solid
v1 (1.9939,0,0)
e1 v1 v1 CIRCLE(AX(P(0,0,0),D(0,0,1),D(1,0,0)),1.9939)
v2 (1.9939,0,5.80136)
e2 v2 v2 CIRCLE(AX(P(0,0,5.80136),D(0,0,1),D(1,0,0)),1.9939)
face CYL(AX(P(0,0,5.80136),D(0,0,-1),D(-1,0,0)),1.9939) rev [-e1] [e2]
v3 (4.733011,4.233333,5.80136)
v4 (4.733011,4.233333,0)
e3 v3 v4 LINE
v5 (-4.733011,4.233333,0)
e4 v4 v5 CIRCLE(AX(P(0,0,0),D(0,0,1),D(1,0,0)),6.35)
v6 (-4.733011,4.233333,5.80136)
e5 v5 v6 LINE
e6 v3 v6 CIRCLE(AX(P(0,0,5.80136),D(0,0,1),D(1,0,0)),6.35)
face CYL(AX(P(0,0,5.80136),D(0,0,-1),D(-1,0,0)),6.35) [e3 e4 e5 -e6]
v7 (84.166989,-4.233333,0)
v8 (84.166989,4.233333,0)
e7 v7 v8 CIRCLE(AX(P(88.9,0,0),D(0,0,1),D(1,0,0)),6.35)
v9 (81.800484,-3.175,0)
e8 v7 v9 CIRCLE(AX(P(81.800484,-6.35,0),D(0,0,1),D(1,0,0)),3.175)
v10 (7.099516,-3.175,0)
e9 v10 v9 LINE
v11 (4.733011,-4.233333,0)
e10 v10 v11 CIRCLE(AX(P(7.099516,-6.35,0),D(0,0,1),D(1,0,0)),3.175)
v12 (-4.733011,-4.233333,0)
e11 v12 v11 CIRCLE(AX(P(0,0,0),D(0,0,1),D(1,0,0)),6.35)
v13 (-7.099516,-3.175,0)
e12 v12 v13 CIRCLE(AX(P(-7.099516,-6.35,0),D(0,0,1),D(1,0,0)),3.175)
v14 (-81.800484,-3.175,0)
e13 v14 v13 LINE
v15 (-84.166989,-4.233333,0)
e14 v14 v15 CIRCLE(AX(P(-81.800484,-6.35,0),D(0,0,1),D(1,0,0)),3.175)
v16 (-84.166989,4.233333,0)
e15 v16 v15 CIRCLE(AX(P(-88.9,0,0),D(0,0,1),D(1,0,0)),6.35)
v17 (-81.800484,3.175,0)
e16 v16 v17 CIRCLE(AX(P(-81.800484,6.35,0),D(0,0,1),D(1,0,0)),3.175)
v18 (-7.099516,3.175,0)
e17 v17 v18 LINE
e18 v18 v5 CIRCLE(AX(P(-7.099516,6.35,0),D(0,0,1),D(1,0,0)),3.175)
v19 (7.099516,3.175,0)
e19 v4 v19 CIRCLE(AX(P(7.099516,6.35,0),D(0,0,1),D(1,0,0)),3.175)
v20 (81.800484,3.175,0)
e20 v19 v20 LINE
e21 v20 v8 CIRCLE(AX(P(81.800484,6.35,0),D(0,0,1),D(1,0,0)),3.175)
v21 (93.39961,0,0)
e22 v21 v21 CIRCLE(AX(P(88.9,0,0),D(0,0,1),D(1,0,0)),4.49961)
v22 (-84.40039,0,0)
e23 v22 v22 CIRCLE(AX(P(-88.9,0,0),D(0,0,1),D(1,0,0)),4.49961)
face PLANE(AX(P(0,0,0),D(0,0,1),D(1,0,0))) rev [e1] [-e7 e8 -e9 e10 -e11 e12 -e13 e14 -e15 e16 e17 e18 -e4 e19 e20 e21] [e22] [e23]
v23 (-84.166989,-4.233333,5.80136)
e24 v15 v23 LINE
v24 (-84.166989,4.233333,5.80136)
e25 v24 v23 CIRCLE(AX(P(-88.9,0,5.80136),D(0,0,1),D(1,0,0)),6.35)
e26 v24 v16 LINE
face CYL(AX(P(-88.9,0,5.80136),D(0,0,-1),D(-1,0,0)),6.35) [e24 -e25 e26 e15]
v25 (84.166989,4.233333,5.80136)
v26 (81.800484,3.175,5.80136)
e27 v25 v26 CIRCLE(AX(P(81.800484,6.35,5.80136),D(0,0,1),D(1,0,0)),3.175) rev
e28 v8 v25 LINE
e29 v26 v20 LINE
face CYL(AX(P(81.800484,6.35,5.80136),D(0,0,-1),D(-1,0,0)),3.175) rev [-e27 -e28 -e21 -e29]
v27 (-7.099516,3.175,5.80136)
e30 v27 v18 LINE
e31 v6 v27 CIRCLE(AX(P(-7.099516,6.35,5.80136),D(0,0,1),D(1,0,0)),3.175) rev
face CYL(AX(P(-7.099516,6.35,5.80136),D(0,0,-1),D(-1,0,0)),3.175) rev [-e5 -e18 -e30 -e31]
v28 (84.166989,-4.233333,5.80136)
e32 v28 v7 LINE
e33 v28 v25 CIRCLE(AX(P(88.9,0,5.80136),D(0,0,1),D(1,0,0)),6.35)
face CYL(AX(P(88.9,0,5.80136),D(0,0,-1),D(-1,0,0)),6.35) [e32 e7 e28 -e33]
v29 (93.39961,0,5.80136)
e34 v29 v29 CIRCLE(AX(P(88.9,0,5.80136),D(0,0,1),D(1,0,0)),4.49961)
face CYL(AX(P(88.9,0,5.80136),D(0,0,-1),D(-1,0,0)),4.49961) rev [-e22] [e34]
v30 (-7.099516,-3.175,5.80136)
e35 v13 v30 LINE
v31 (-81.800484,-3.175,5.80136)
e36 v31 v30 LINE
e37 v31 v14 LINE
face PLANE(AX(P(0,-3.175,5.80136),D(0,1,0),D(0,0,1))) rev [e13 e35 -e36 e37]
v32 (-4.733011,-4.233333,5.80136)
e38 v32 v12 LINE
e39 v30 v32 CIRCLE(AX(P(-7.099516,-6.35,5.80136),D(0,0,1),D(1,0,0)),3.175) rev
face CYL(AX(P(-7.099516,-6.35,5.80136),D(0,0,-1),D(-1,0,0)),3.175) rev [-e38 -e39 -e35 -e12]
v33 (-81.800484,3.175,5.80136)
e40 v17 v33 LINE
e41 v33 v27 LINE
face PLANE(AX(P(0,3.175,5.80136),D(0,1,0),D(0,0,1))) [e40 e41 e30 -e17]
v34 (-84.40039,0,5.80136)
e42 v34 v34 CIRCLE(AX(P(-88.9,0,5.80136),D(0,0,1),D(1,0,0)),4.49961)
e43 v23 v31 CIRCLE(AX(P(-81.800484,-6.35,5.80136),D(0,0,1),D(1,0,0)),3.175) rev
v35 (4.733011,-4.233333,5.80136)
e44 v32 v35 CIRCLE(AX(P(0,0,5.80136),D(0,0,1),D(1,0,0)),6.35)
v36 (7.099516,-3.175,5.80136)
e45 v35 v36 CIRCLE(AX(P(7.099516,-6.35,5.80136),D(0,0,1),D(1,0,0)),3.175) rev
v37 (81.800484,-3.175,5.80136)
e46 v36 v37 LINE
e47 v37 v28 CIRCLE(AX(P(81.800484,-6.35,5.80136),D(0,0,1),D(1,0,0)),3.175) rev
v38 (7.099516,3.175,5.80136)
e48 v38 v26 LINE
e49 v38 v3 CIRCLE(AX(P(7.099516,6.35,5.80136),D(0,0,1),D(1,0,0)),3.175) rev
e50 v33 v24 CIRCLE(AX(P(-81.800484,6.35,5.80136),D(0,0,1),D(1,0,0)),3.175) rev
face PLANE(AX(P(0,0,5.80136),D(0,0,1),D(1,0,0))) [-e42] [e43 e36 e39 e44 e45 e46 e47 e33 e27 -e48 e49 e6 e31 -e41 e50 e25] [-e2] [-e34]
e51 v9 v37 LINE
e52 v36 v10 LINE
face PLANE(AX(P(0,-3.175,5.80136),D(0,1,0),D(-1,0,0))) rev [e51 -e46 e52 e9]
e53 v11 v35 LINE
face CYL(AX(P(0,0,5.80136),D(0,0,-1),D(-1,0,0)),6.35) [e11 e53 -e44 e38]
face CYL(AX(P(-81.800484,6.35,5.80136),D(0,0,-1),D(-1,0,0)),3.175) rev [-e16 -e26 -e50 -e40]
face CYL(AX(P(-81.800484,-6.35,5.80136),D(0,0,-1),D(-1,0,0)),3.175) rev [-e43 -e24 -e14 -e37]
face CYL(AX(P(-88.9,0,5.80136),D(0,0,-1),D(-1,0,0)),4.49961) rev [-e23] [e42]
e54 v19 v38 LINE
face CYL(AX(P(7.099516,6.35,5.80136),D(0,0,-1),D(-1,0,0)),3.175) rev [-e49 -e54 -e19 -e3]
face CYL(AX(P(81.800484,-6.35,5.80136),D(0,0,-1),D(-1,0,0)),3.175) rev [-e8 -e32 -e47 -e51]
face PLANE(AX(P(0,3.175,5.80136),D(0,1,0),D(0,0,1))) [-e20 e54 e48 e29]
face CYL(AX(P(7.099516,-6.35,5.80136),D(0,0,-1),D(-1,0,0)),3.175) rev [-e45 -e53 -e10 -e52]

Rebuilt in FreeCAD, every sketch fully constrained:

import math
import FreeCAD as App
import Part
import Sketcher

V = App.Vector
Q = App.Units.Quantity


def edges_at(feature, points):
    """Names of the edges that pass closest to the given points."""
    edges = feature.Shape.Edges
    near = lambda p: min(range(len(edges)), key=lambda i: edges[i].distToShape(Part.Vertex(*p))[0])
    return sorted({f"Edge{near(p) + 1}" for p in points})

doc = App.newDocument("Part")
params = doc.addObject("Spreadsheet::Sheet", "Params")
for row, (alias, value) in enumerate([
    ("sketch1_radius", "0.25 in"),
    ("sketch1_diameter", "0.157 in"),
    ("pad1_length", "0.2284 in"),
    ("fillet_radius", "0.125 in"),
], start=1):
    params.set(f"A{row}", alias)
    params.set(f"B{row}", "=" + value)
    params.setAlias(f"B{row}", alias)

body = doc.addObject("PartDesign::Body", "Body")

# Sketch on XY plane
sketch1 = body.newObject("Sketcher::SketchObject", "Sketch")
sketch1.AttachmentSupport = (doc.getObject("XY_Plane"), [""])
sketch1.MapMode = "FlatFace"
sketch1.addGeometry(Part.LineSegment(V(-83.400739, -3.175, 0), V(-5.499261, -3.175, 0)), False)
sketch1.addGeometry(Part.ArcOfCircle(Part.Circle(V(0, 0, 0), V(0, 0, 1), 6.35), math.radians(-150), math.radians(-30)), False)
sketch1.addGeometry(Part.LineSegment(V(5.499261, -3.175, 0), V(83.400739, -3.175, 0)), False)
sketch1.addGeometry(Part.ArcOfCircle(Part.Circle(V(88.9, 0, 0), V(0, 0, 1), 6.35), math.radians(-150), math.radians(150)), False)
sketch1.addGeometry(Part.LineSegment(V(83.400739, 3.175, 0), V(5.499261, 3.175, 0)), False)
sketch1.addGeometry(Part.ArcOfCircle(Part.Circle(V(0, 0, 0), V(0, 0, 1), 6.35), math.radians(30), math.radians(150)), False)
sketch1.addGeometry(Part.LineSegment(V(-5.499261, 3.175, 0), V(-83.400739, 3.175, 0)), False)
sketch1.addGeometry(Part.ArcOfCircle(Part.Circle(V(-88.9, 0, 0), V(0, 0, 1), 6.35), math.radians(30), math.radians(330)), False)
sketch1.addGeometry(Part.Circle(V(-88.9, 0, 0), V(0, 0, 1), 4.49961), False)
sketch1.addGeometry(Part.Circle(V(0, 0, 0), V(0, 0, 1), 1.9939), False)
sketch1.addGeometry(Part.Circle(V(88.9, 0, 0), V(0, 0, 1), 4.49961), False)
sketch1.addConstraint(Sketcher.Constraint("Coincident", 0, 2, 1, 1))
sketch1.addConstraint(Sketcher.Constraint("Coincident", 1, 2, 2, 1))
sketch1.addConstraint(Sketcher.Constraint("Coincident", 2, 2, 3, 1))
sketch1.addConstraint(Sketcher.Constraint("Coincident", 3, 2, 4, 1))
sketch1.addConstraint(Sketcher.Constraint("Coincident", 4, 2, 5, 1))
sketch1.addConstraint(Sketcher.Constraint("Coincident", 5, 2, 6, 1))
sketch1.addConstraint(Sketcher.Constraint("Coincident", 6, 2, 7, 1))
sketch1.addConstraint(Sketcher.Constraint("Coincident", 7, 2, 0, 1))
sketch1.addConstraint(Sketcher.Constraint("Horizontal", 0))
sketch1.addConstraint(Sketcher.Constraint("Horizontal", 2))
sketch1.addConstraint(Sketcher.Constraint("Horizontal", 4))
sketch1.addConstraint(Sketcher.Constraint("Horizontal", 6))
sketch1.addConstraint(Sketcher.Constraint("Coincident", 1, 3, -1, 1))
sketch1.addConstraint(Sketcher.Constraint("Coincident", 5, 3, -1, 1))
sketch1.addConstraint(Sketcher.Constraint("Coincident", 9, 3, -1, 1))
sketch1.addConstraint(Sketcher.Constraint("Coincident", 8, 3, 7, 3))
sketch1.addConstraint(Sketcher.Constraint("Coincident", 10, 3, 3, 3))
sketch1.addConstraint(Sketcher.Constraint("Equal", 1, 3))
sketch1.addConstraint(Sketcher.Constraint("Equal", 3, 5))
sketch1.addConstraint(Sketcher.Constraint("Equal", 5, 7))
sketch1.addConstraint(Sketcher.Constraint("Equal", 8, 10))
sketch1.addConstraint(Sketcher.Constraint("Symmetric", 3, 3, 7, 3, -1, 1))
sketch1.addConstraint(Sketcher.Constraint("Symmetric", 3, 2, 6, 2, -2))
sketch1.addConstraint(Sketcher.Constraint("Horizontal", 0, 2, 1, 2))
sketch1.addConstraint(Sketcher.Constraint("Vertical", 2, 2, 3, 2))
sketch1.addConstraint(Sketcher.Constraint("Radius", 1, Q("0.25 in")))
sketch1.addConstraint(Sketcher.Constraint("Diameter", 9, Q("0.157 in")))
sketch1.addConstraint(Sketcher.Constraint("DistanceX", 7, 3, 3, 3, Q("7 in")))
sketch1.addConstraint(Sketcher.Constraint("Diameter", 8, Q("0.3543 in")))
sketch1.addConstraint(Sketcher.Constraint("DistanceY", 2, 2, 3, 2, Q("0.25 in")))
sketch1.setExpression("Constraints[25]", "Params.sketch1_radius")
sketch1.setExpression("Constraints[26]", "Params.sketch1_diameter")
pad1 = body.newObject("PartDesign::Pad", "Pad")
pad1.Profile = sketch1
pad1.setExpression("Length", "Params.pad1_length")
doc.recompute()

fillet = body.newObject("PartDesign::Fillet", "Fillet")
fillet.Base = (pad1, edges_at(pad1, [
    (-83.401, 3.175, 2.901),
    (-5.499, 3.175, 2.901),
    (5.499, 3.175, 2.901),
    (83.401, 3.175, 2.901),
    (83.401, -3.175, 2.901),
    (5.499, -3.175, 2.901),
    (-5.499, -3.175, 2.901),
    (-83.401, -3.175, 2.901),
]))
fillet.setExpression("Radius", "Params.fillet_radius")

doc.recompute()
